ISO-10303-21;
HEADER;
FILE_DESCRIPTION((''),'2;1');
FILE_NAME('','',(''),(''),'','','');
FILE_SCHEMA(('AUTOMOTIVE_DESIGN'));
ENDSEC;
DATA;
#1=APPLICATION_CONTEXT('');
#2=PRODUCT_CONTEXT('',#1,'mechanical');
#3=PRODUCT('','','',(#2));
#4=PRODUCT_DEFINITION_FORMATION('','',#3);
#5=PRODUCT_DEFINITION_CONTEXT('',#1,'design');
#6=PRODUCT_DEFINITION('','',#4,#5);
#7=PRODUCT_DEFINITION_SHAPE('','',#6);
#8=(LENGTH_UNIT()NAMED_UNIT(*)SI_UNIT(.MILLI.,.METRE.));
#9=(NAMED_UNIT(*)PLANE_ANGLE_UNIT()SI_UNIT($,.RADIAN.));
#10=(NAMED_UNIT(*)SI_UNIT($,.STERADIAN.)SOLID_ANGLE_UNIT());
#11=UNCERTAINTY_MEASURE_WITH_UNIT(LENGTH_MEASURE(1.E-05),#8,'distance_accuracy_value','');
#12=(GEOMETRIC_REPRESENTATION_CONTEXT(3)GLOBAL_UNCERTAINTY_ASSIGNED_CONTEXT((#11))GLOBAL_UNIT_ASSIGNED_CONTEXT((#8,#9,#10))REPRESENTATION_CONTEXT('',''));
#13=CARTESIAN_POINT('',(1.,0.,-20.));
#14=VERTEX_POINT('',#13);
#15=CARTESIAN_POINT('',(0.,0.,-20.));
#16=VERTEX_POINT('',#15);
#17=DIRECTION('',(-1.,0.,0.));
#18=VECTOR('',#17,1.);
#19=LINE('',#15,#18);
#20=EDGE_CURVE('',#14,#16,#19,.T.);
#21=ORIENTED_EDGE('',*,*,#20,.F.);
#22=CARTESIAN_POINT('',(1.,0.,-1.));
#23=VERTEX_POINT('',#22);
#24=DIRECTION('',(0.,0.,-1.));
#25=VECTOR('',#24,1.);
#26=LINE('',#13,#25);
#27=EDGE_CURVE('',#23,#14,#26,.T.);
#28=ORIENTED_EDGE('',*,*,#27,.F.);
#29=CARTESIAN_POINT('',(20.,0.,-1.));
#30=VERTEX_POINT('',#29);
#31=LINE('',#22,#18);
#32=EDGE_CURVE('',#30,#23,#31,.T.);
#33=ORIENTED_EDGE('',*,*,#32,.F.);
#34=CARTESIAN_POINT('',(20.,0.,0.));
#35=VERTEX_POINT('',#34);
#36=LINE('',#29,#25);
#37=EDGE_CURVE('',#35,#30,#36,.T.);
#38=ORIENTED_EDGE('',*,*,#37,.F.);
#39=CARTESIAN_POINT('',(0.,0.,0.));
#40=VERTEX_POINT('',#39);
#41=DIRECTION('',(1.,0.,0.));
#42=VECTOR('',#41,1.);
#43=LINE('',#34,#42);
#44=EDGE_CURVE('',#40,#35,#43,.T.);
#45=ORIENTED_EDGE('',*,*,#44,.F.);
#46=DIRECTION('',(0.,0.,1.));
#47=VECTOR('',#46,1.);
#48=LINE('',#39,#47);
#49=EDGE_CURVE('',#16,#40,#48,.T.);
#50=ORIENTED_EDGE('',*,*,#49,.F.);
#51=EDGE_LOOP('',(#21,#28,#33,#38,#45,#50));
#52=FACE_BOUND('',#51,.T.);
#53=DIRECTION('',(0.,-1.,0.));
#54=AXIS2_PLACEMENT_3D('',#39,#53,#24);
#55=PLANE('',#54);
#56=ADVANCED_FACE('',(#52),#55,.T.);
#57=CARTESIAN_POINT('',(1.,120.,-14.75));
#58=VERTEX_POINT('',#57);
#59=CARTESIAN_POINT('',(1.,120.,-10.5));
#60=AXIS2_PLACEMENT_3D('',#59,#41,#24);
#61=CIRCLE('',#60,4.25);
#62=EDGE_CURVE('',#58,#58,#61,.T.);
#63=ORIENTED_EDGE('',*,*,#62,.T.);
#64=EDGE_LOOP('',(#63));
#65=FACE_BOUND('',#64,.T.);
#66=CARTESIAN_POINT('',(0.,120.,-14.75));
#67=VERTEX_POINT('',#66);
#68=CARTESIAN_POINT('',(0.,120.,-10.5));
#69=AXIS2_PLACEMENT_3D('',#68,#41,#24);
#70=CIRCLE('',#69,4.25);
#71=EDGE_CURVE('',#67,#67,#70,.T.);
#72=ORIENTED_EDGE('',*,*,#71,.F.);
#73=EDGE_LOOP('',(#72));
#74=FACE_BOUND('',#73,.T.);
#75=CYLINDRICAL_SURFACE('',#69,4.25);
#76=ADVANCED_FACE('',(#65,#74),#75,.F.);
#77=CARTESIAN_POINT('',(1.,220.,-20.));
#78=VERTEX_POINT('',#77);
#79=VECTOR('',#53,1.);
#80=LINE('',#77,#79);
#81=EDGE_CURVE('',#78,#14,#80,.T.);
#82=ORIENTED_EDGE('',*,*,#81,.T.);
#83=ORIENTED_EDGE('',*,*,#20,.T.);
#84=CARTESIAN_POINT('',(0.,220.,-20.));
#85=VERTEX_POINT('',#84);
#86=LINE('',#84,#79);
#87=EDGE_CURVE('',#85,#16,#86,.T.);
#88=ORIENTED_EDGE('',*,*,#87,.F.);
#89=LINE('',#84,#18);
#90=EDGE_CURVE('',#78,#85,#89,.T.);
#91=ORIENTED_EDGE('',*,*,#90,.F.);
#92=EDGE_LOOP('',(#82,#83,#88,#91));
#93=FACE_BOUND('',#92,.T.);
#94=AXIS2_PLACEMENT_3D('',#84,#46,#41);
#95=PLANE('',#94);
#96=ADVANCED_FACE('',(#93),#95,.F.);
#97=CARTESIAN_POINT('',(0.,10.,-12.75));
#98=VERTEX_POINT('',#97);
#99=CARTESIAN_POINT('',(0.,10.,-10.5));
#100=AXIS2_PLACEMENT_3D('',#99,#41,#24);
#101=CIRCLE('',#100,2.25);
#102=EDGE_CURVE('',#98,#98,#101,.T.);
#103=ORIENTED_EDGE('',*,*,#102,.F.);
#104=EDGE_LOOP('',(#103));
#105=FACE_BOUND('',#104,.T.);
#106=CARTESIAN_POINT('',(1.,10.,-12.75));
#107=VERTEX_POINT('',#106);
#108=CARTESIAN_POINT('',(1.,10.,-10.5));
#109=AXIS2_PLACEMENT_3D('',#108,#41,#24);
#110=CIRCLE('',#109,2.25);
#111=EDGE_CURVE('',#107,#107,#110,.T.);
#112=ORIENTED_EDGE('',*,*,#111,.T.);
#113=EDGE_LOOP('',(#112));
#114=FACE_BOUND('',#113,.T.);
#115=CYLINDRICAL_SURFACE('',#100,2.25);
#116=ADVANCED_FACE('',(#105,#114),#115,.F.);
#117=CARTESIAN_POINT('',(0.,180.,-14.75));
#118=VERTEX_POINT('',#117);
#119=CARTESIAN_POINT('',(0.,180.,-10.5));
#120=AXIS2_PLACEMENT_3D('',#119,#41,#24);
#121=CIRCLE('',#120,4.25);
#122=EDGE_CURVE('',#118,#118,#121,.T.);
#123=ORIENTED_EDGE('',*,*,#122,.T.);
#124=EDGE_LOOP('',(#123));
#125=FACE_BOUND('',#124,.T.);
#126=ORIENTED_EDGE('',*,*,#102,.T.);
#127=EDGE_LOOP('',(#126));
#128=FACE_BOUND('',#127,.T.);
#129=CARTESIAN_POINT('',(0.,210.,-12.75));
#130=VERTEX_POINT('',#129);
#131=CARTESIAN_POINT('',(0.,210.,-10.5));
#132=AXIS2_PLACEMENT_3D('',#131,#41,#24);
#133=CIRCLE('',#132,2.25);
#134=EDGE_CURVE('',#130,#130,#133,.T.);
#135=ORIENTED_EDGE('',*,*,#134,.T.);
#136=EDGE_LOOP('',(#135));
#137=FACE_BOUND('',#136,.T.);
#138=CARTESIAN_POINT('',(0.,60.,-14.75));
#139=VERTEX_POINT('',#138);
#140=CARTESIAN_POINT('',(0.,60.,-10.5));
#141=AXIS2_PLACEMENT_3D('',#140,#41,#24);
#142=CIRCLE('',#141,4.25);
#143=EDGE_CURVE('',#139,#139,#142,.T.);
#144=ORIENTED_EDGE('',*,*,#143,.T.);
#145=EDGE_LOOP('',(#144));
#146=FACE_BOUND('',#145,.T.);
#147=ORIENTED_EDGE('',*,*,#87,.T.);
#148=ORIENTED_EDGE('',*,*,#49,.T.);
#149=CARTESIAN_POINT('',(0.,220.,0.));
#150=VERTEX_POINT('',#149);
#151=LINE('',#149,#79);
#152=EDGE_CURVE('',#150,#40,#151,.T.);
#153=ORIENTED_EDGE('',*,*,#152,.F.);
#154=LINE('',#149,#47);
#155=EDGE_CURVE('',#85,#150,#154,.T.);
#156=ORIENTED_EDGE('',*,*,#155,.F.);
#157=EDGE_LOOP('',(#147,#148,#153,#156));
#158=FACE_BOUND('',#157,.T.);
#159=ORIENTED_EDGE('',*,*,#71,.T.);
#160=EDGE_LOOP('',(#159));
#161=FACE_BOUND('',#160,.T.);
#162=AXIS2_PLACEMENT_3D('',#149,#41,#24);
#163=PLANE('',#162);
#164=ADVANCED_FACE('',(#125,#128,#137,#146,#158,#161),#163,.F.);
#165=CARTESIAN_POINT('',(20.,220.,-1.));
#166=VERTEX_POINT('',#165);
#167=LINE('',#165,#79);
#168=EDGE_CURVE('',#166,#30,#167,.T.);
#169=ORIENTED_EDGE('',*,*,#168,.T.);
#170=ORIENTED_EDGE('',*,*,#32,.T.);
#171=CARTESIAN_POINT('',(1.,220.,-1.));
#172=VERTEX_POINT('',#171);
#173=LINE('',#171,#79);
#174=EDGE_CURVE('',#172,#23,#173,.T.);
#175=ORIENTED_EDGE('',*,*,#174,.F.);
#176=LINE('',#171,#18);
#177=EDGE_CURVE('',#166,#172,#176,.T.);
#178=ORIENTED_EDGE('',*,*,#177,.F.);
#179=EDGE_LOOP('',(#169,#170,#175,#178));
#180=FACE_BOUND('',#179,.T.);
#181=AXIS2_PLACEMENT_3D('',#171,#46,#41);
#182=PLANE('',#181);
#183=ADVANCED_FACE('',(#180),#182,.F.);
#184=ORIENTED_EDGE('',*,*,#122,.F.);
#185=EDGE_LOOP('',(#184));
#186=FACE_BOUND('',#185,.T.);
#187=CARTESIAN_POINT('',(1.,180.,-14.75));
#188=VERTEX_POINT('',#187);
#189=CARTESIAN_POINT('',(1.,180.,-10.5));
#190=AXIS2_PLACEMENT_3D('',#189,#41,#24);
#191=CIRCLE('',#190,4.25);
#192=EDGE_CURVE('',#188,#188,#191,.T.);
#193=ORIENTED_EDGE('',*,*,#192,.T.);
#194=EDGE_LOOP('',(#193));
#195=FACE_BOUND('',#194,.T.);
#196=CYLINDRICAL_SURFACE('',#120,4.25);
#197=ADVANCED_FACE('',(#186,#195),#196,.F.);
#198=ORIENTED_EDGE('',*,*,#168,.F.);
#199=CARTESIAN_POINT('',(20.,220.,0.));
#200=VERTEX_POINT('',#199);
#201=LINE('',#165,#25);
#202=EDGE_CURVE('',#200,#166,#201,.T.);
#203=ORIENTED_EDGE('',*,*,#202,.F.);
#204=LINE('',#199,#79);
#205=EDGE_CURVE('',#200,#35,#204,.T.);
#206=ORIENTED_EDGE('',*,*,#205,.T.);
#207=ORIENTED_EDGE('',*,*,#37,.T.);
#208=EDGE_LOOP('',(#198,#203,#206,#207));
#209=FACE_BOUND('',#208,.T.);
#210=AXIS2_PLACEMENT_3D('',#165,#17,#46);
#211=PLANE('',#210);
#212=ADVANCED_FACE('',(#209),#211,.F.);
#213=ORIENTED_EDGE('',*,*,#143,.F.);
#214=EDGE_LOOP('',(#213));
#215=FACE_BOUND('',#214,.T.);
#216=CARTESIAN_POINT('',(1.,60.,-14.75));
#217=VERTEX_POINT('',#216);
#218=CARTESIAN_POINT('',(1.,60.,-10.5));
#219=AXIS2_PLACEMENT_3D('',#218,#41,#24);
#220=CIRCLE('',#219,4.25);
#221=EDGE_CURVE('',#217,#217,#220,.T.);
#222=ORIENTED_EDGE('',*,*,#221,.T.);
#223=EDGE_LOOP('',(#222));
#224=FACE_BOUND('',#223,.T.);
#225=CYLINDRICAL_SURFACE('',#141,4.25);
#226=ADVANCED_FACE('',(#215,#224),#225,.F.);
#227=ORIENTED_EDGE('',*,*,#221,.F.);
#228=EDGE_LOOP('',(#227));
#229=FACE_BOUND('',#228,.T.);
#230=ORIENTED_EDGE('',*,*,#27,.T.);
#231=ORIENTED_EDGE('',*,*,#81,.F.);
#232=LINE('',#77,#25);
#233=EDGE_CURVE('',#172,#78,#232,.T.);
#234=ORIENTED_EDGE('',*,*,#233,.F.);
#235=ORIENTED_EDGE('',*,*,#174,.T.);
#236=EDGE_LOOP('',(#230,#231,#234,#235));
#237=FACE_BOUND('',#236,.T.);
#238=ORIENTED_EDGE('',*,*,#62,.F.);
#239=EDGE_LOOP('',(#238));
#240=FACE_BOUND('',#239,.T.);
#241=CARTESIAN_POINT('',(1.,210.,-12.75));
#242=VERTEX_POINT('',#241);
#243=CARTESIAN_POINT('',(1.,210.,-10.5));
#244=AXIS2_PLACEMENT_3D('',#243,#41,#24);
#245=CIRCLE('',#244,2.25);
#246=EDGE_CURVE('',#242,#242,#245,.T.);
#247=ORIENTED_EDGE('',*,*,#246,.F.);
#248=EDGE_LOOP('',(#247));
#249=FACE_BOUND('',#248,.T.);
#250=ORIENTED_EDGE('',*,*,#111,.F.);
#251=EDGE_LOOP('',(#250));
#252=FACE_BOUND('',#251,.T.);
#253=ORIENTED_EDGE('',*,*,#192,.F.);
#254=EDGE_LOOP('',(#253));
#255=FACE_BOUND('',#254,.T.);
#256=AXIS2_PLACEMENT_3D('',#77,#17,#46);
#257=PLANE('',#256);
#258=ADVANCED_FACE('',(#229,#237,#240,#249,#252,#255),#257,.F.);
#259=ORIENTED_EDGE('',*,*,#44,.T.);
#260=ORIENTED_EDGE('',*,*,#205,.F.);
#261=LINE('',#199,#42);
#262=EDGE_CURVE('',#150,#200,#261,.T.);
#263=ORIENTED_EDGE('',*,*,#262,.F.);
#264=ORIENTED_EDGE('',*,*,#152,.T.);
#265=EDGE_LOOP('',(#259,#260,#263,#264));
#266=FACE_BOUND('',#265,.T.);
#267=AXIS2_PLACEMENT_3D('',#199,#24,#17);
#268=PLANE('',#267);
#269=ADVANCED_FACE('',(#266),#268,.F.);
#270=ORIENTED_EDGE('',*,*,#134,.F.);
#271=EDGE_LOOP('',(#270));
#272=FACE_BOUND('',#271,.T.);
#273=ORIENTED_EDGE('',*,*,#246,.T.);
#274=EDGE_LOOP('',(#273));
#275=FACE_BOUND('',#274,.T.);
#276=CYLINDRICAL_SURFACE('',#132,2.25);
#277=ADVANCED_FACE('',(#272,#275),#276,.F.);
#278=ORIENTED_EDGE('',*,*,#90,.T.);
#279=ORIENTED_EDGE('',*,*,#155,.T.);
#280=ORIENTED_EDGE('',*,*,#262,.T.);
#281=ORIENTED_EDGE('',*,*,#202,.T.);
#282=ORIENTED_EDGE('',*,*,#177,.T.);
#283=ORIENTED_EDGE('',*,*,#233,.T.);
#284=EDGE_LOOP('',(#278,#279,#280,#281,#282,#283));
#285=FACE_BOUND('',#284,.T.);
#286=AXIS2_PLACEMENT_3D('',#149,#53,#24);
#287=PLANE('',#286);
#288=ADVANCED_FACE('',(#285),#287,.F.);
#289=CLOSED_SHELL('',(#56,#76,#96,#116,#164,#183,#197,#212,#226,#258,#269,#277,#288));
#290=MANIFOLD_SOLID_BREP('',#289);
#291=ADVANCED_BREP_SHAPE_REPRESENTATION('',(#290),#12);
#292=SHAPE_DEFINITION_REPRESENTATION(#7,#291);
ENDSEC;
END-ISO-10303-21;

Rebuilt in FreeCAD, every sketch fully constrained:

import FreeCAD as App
import Part
import Sketcher
from FreeCAD import Vector


def add_polygon(sketch, points):
    """Adds a closed chain of lines whose ends are joined by coincident constraints."""
    first, n = sketch.GeometryCount, len(points)
    for a, b in zip(points, points[1:] + points[:1]):
        sketch.addGeometry(Part.LineSegment(App.Vector(*a, 0), App.Vector(*b, 0)), False)
    for i in range(n):
        sketch.addConstraint(Sketcher.Constraint("Coincident", first + i, 2, first + (i + 1) % n, 1))

doc = App.newDocument("Part")
body = doc.addObject("PartDesign::Body", "Body")

# Sketch on XZ plane
sketch1 = body.newObject("Sketcher::SketchObject", "Sketch")
sketch1.AttachmentSupport = (doc.getObject("XZ_Plane"), [""])
sketch1.MapMode = "FlatFace"
add_polygon(sketch1, [(0, -20), (0, 0), (20, 0), (20, -1), (1, -1), (1, -20)])  # lines 0-5
sketch1.addConstraint([
    Sketcher.Constraint("Vertical", 0),
    Sketcher.Constraint("Horizontal", 1),
    Sketcher.Constraint("Vertical", 2),
    Sketcher.Constraint("Horizontal", 3),
    Sketcher.Constraint("Vertical", 4),
    Sketcher.Constraint("Horizontal", 5),
    Sketcher.Constraint("Coincident", 0, 2, -1, 1),
    Sketcher.Constraint("Equal", 1, 0),
    Sketcher.Constraint("Equal", 5, 2),
    Sketcher.Constraint("DistanceX", 1, 1, 1, 2, 20.0),
    Sketcher.Constraint("DistanceX", 3, 2, 3, 1, 19.0),
])
pad1 = body.newObject("PartDesign::Pad", "Pad")
pad1.Profile = sketch1
pad1.Length = 220
pad1.Reversed = True

# Sketch on YZ plane
sketch2 = body.newObject("Sketcher::SketchObject", "Sketch001")
sketch2.AttachmentSupport = (doc.getObject("YZ_Plane"), [""])
sketch2.MapMode = "FlatFace"
sketch2.AttachmentOffset = App.Placement(Vector(0, 0, 1), App.Rotation())
sketch2.addGeometry([
    Part.Circle(Vector(180, -10.5, 0), Vector(0, 0, 1), 4.2),
    Part.Circle(Vector(120, -10.5, 0), Vector(0, 0, 1), 4.2),
    Part.Circle(Vector(60, -10.5, 0), Vector(0, 0, 1), 4.2),
], False)
sketch2.addConstraint([
    Sketcher.Constraint("Equal", 0, 1),
    Sketcher.Constraint("Equal", 1, 2),
    Sketcher.Constraint("Horizontal", 0, 3, 1, 3),
    Sketcher.Constraint("Horizontal", 1, 3, 2, 3),
    Sketcher.Constraint("Diameter", 0, 8.5),
    Sketcher.Constraint("DistanceX", -1, 1, 0, 3, 180.0),
    Sketcher.Constraint("DistanceX", -1, 1, 1, 3, 120.0),
    Sketcher.Constraint("DistanceX", -1, 1, 2, 3, 60.0),
    Sketcher.Constraint("DistanceY", 0, 3, -1, 1, 10.5),
])
pocket1 = body.newObject("PartDesign::Pocket", "Pocket")
pocket1.Profile = sketch2
pocket1.Type = "ThroughAll"

# Sketch on YZ plane
sketch3 = body.newObject("Sketcher::SketchObject", "Sketch002")
sketch3.AttachmentSupport = (doc.getObject("YZ_Plane"), [""])
sketch3.MapMode = "FlatFace"
sketch3.AttachmentOffset = App.Placement(Vector(0, 0, 1), App.Rotation())
sketch3.addGeometry(Part.Circle(Vector(210, -10.5, 0), Vector(0, 0, 1), 2.2), False)
sketch3.addConstraint([
    Sketcher.Constraint("Diameter", 0, 4.5),
    Sketcher.Constraint("DistanceX", -1, 1, 0, 3, 210.0),
    Sketcher.Constraint("DistanceY", 0, 3, -1, 1, 10.5),
])
pocket2 = body.newObject("PartDesign::Pocket", "Pocket001")
pocket2.Profile = sketch3
pocket2.Type = "ThroughAll"

# Sketch on YZ plane
sketch4 = body.newObject("Sketcher::SketchObject", "Sketch003")
sketch4.AttachmentSupport = (doc.getObject("YZ_Plane"), [""])
sketch4.MapMode = "FlatFace"
sketch4.AttachmentOffset = App.Placement(Vector(0, 0, 1), App.Rotation())
sketch4.addGeometry(Part.Circle(Vector(10, -10.5, 0), Vector(0, 0, 1), 2.2), False)
sketch4.addConstraint([
    Sketcher.Constraint("Diameter", 0, 4.5),
    Sketcher.Constraint("DistanceX", -1, 1, 0, 3, 10.0),
    Sketcher.Constraint("DistanceY", 0, 3, -1, 1, 10.5),
])
pocket3 = body.newObject("PartDesign::Pocket", "Pocket002")
pocket3.Profile = sketch4
pocket3.Type = "ThroughAll"

doc.recompute()
